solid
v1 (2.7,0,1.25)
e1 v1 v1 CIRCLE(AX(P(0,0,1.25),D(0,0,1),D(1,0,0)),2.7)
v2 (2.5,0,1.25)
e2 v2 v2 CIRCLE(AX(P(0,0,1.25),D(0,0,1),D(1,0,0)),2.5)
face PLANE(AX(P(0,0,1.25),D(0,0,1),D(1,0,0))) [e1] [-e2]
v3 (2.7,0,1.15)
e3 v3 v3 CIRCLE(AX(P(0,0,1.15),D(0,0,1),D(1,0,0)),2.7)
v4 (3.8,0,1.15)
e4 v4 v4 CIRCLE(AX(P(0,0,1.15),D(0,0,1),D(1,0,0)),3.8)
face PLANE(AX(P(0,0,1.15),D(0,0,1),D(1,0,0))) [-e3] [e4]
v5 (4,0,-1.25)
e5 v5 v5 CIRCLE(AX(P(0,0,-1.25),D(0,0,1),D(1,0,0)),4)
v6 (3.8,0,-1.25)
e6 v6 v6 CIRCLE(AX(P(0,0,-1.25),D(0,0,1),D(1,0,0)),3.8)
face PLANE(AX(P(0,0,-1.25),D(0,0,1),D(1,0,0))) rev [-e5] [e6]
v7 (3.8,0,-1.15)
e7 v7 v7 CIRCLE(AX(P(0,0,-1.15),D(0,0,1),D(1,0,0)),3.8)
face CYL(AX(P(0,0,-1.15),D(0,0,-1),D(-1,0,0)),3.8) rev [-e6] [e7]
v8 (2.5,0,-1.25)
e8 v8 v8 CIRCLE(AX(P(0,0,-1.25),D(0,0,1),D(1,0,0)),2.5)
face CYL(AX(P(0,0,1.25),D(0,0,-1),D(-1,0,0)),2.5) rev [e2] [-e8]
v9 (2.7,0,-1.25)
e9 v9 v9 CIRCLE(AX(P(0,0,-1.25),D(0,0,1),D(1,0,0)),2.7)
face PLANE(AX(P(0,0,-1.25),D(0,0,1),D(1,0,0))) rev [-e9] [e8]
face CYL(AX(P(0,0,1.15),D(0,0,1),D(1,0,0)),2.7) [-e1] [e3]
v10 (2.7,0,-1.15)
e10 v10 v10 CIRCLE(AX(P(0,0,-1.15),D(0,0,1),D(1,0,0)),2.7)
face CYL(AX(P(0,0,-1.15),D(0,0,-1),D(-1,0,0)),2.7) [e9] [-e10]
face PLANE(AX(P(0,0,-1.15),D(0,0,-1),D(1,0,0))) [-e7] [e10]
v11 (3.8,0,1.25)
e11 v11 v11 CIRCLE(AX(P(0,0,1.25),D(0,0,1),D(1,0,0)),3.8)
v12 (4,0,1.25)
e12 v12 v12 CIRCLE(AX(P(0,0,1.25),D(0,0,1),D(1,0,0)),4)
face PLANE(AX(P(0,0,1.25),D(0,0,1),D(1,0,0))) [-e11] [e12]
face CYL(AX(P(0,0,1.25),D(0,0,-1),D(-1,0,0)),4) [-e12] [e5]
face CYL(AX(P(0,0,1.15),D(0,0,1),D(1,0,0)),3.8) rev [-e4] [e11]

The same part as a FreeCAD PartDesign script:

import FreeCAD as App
import Part
import Sketcher
Q = App.Units.Quantity

doc = App.newDocument("Part")
body = doc.addObject("PartDesign::Body", "Body")

sketch1 = doc.addObject("Sketcher::SketchObject", "Sketch")
body.addObject(sketch1)
sketch1.AttachmentSupport = (doc.XY_Plane, [""])
sketch1.MapMode = "FlatFace"
sketch1.addGeometry([
    Part.Circle(App.Vector(0, 0, 0), App.Vector(0, 0, 1), 4),
    Part.Circle(App.Vector(0, 0, 0), App.Vector(0, 0, 1), 2.5),
], False)
sketch1.addConstraint([
    Sketcher.Constraint("Coincident", 0, 3, -1, 1),
    Sketcher.Constraint("Coincident", 1, 3, -1, 1),
    Sketcher.Constraint("Diameter", 0, Q("8 mm")),
    Sketcher.Constraint("Diameter", 1, Q("5 mm")),
])
pad1 = doc.addObject("PartDesign::Pad", "Pad")
body.addObject(pad1)
pad1.Profile = sketch1
pad1.Length = 2.5
pad1.Midplane = True

sketch2 = doc.addObject("Sketcher::SketchObject", "Sketch001")
body.addObject(sketch2)
sketch2.AttachmentSupport = (doc.XY_Plane, [""])
sketch2.MapMode = "FlatFace"
sketch2.AttachmentOffset = App.Placement(App.Vector(0, 0, 1.25), App.Rotation())
sketch2.addGeometry([
    Part.Circle(App.Vector(0, 0, 0), App.Vector(0, 0, 1), 3.8),
    Part.Circle(App.Vector(0, 0, 0), App.Vector(0, 0, 1), 2.7),
], False)
sketch2.addConstraint([
    Sketcher.Constraint("Coincident", 0, 3, -1, 1),
    Sketcher.Constraint("Coincident", 1, 3, -1, 1),
    Sketcher.Constraint("Diameter", 0, Q("7.6 mm")),
    Sketcher.Constraint("Diameter", 1, Q("5.4 mm")),
])
pocket1 = doc.addObject("PartDesign::Pocket", "Pocket")
body.addObject(pocket1)
pocket1.Profile = sketch2
pocket1.Length = 0.1
doc.recompute()

mirrored = doc.addObject("PartDesign::Mirrored", "Mirrored")
body.addObject(mirrored)
mirrored.Originals = [pocket1]
mirrored.MirrorPlane = (doc.XY_Plane, [""])
body.Tip = mirrored

doc.recompute()
